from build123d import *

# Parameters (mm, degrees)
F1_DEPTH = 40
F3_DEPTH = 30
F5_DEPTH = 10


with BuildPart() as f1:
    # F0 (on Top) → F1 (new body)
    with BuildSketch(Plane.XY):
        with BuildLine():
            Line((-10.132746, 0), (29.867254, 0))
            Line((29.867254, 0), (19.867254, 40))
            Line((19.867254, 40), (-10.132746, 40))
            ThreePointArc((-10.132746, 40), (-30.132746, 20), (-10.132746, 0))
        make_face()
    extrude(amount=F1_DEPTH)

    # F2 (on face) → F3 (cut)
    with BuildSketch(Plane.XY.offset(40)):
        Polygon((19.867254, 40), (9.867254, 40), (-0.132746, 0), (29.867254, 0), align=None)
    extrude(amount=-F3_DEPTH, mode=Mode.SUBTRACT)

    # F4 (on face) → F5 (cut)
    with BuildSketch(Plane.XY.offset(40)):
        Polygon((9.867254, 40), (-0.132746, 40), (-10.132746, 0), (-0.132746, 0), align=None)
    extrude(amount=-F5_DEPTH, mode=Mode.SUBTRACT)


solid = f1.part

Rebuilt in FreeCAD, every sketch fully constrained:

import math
import FreeCAD as App
import Part
import Sketcher
Q = App.Units.Quantity

doc = App.newDocument("Part")
body = doc.addObject("PartDesign::Body", "Body")

# Sketch on XY plane
sketch1 = doc.addObject("Sketcher::SketchObject", "Sketch")
body.addObject(sketch1)
sketch1.AttachmentSupport = (doc.XY_Plane, [""])
sketch1.MapMode = "FlatFace"
sketch1.addGeometry(Part.LineSegment(App.Vector(-10, 0, 0), App.Vector(30, 0, 0)), False)
sketch1.addGeometry(Part.LineSegment(App.Vector(30, 0, 0), App.Vector(20, 40, 0)), False)
sketch1.addGeometry(Part.LineSegment(App.Vector(20, 40, 0), App.Vector(-10, 40, 0)), False)
sketch1.addGeometry(Part.ArcOfCircle(Part.Circle(App.Vector(-10, 20, 0), App.Vector(0, 0, 1), 20), math.radians(90), math.radians(270)), False)
sketch1.addConstraint(Sketcher.Constraint("Coincident", 0, 2, 1, 1))
sketch1.addConstraint(Sketcher.Constraint("Coincident", 1, 2, 2, 1))
sketch1.addConstraint(Sketcher.Constraint("Tangent", 2, 2, 3, 1))
sketch1.addConstraint(Sketcher.Constraint("Tangent", 3, 2, 0, 1))
sketch1.addConstraint(Sketcher.Constraint("Horizontal", 0))
sketch1.addConstraint(Sketcher.Constraint("Horizontal", 2))
sketch1.addConstraint(Sketcher.Constraint("PointOnObject", 0, 2, -1))
sketch1.addConstraint(Sketcher.Constraint("Radius", 3, Q("20 mm")))
sketch1.addConstraint(Sketcher.Constraint("DistanceX", 0, 1, 0, 2, Q("40 mm")))
sketch1.addConstraint(Sketcher.Constraint("DistanceX", 2, 2, 2, 1, Q("30 mm")))
sketch1.addConstraint(Sketcher.Constraint("DistanceX", 3, 3, -1, 1, Q("10.132746 mm")))
pad1 = doc.addObject("PartDesign::Pad", "Pad")
body.addObject(pad1)
pad1.Profile = sketch1
pad1.Length = 40

# Sketch on XY plane
sketch2 = doc.addObject("Sketcher::SketchObject", "Sketch001")
body.addObject(sketch2)
sketch2.AttachmentSupport = (doc.XY_Plane, [""])
sketch2.MapMode = "FlatFace"
sketch2.AttachmentOffset = App.Placement(App.Vector(0, 0, 40), App.Rotation())
sketch2.addGeometry(Part.LineSegment(App.Vector(20, 40, 0), App.Vector(10, 40, 0)), False)
sketch2.addGeometry(Part.LineSegment(App.Vector(10, 40, 0), App.Vector(0, 0, 0)), False)
sketch2.addGeometry(Part.LineSegment(App.Vector(0, 0, 0), App.Vector(30, 0, 0)), False)
sketch2.addGeometry(Part.LineSegment(App.Vector(30, 0, 0), App.Vector(20, 40, 0)), False)
sketch2.addConstraint(Sketcher.Constraint("Coincident", 0, 2, 1, 1))
sketch2.addConstraint(Sketcher.Constraint("Coincident", 1, 2, 2, 1))
sketch2.addConstraint(Sketcher.Constraint("Coincident", 2, 2, 3, 1))
sketch2.addConstraint(Sketcher.Constraint("Coincident", 3, 2, 0, 1))
sketch2.addConstraint(Sketcher.Constraint("Horizontal", 0))
sketch2.addConstraint(Sketcher.Constraint("Horizontal", 2))
sketch2.addConstraint(Sketcher.Constraint("PointOnObject", 1, 2, -1))
sketch2.addConstraint(Sketcher.Constraint("Equal", 1, 3))
sketch2.addConstraint(Sketcher.Constraint("DistanceX", 0, 2, 0, 1, Q("10 mm")))
sketch2.addConstraint(Sketcher.Constraint("DistanceX", 2, 1, 2, 2, Q("30 mm")))
sketch2.addConstraint(Sketcher.Constraint("DistanceY", -1, 1, 0, 2, Q("40 mm")))
sketch2.addConstraint(Sketcher.Constraint("DistanceX", -1, 1, 0, 2, Q("9.867254 mm")))
pocket1 = doc.addObject("PartDesign::Pocket", "Pocket")
body.addObject(pocket1)
pocket1.Profile = sketch2
pocket1.Length = 30

# Sketch on XY plane
sketch3 = doc.addObject("Sketcher::SketchObject", "Sketch002")
body.addObject(sketch3)
sketch3.AttachmentSupport = (doc.XY_Plane, [""])
sketch3.MapMode = "FlatFace"
sketch3.AttachmentOffset = App.Placement(App.Vector(0, 0, 40), App.Rotation())
sketch3.addGeometry(Part.LineSegment(App.Vector(10, 40, 0), App.Vector(0, 40, 0)), False)
sketch3.addGeometry(Part.LineSegment(App.Vector(0, 40, 0), App.Vector(-10, 0, 0)), False)
sketch3.addGeometry(Part.LineSegment(App.Vector(-10, 0, 0), App.Vector(0, 0, 0)), False)
sketch3.addGeometry(Part.LineSegment(App.Vector(0, 0, 0), App.Vector(10, 40, 0)), False)
sketch3.addConstraint(Sketcher.Constraint("Coincident", 0, 2, 1, 1))
sketch3.addConstraint(Sketcher.Constraint("Coincident", 1, 2, 2, 1))
sketch3.addConstraint(Sketcher.Constraint("Coincident", 2, 2, 3, 1))
sketch3.addConstraint(Sketcher.Constraint("Coincident", 3, 2, 0, 1))
sketch3.addConstraint(Sketcher.Constraint("Horizontal", 0))
sketch3.addConstraint(Sketcher.Constraint("Horizontal", 2))
sketch3.addConstraint(Sketcher.Constraint("PointOnObject", 1, 2, -1))
sketch3.addConstraint(Sketcher.Constraint("Parallel", 1, 3))
sketch3.addConstraint(Sketcher.Constraint("Vertical", 0, 2, 2, 2))
sketch3.addConstraint(Sketcher.Constraint("DistanceX", 0, 2, 0, 1, Q("10 mm")))
sketch3.addConstraint(Sketcher.Constraint("DistanceY", -1, 1, 0, 2, Q("40 mm")))
sketch3.addConstraint(Sketcher.Constraint("DistanceX", 0, 2, -1, 1, Q("0.132746 mm")))
pocket2 = doc.addObject("PartDesign::Pocket", "Pocket001")
body.addObject(pocket2)
pocket2.Profile = sketch3
pocket2.Length = 10

doc.recompute()
